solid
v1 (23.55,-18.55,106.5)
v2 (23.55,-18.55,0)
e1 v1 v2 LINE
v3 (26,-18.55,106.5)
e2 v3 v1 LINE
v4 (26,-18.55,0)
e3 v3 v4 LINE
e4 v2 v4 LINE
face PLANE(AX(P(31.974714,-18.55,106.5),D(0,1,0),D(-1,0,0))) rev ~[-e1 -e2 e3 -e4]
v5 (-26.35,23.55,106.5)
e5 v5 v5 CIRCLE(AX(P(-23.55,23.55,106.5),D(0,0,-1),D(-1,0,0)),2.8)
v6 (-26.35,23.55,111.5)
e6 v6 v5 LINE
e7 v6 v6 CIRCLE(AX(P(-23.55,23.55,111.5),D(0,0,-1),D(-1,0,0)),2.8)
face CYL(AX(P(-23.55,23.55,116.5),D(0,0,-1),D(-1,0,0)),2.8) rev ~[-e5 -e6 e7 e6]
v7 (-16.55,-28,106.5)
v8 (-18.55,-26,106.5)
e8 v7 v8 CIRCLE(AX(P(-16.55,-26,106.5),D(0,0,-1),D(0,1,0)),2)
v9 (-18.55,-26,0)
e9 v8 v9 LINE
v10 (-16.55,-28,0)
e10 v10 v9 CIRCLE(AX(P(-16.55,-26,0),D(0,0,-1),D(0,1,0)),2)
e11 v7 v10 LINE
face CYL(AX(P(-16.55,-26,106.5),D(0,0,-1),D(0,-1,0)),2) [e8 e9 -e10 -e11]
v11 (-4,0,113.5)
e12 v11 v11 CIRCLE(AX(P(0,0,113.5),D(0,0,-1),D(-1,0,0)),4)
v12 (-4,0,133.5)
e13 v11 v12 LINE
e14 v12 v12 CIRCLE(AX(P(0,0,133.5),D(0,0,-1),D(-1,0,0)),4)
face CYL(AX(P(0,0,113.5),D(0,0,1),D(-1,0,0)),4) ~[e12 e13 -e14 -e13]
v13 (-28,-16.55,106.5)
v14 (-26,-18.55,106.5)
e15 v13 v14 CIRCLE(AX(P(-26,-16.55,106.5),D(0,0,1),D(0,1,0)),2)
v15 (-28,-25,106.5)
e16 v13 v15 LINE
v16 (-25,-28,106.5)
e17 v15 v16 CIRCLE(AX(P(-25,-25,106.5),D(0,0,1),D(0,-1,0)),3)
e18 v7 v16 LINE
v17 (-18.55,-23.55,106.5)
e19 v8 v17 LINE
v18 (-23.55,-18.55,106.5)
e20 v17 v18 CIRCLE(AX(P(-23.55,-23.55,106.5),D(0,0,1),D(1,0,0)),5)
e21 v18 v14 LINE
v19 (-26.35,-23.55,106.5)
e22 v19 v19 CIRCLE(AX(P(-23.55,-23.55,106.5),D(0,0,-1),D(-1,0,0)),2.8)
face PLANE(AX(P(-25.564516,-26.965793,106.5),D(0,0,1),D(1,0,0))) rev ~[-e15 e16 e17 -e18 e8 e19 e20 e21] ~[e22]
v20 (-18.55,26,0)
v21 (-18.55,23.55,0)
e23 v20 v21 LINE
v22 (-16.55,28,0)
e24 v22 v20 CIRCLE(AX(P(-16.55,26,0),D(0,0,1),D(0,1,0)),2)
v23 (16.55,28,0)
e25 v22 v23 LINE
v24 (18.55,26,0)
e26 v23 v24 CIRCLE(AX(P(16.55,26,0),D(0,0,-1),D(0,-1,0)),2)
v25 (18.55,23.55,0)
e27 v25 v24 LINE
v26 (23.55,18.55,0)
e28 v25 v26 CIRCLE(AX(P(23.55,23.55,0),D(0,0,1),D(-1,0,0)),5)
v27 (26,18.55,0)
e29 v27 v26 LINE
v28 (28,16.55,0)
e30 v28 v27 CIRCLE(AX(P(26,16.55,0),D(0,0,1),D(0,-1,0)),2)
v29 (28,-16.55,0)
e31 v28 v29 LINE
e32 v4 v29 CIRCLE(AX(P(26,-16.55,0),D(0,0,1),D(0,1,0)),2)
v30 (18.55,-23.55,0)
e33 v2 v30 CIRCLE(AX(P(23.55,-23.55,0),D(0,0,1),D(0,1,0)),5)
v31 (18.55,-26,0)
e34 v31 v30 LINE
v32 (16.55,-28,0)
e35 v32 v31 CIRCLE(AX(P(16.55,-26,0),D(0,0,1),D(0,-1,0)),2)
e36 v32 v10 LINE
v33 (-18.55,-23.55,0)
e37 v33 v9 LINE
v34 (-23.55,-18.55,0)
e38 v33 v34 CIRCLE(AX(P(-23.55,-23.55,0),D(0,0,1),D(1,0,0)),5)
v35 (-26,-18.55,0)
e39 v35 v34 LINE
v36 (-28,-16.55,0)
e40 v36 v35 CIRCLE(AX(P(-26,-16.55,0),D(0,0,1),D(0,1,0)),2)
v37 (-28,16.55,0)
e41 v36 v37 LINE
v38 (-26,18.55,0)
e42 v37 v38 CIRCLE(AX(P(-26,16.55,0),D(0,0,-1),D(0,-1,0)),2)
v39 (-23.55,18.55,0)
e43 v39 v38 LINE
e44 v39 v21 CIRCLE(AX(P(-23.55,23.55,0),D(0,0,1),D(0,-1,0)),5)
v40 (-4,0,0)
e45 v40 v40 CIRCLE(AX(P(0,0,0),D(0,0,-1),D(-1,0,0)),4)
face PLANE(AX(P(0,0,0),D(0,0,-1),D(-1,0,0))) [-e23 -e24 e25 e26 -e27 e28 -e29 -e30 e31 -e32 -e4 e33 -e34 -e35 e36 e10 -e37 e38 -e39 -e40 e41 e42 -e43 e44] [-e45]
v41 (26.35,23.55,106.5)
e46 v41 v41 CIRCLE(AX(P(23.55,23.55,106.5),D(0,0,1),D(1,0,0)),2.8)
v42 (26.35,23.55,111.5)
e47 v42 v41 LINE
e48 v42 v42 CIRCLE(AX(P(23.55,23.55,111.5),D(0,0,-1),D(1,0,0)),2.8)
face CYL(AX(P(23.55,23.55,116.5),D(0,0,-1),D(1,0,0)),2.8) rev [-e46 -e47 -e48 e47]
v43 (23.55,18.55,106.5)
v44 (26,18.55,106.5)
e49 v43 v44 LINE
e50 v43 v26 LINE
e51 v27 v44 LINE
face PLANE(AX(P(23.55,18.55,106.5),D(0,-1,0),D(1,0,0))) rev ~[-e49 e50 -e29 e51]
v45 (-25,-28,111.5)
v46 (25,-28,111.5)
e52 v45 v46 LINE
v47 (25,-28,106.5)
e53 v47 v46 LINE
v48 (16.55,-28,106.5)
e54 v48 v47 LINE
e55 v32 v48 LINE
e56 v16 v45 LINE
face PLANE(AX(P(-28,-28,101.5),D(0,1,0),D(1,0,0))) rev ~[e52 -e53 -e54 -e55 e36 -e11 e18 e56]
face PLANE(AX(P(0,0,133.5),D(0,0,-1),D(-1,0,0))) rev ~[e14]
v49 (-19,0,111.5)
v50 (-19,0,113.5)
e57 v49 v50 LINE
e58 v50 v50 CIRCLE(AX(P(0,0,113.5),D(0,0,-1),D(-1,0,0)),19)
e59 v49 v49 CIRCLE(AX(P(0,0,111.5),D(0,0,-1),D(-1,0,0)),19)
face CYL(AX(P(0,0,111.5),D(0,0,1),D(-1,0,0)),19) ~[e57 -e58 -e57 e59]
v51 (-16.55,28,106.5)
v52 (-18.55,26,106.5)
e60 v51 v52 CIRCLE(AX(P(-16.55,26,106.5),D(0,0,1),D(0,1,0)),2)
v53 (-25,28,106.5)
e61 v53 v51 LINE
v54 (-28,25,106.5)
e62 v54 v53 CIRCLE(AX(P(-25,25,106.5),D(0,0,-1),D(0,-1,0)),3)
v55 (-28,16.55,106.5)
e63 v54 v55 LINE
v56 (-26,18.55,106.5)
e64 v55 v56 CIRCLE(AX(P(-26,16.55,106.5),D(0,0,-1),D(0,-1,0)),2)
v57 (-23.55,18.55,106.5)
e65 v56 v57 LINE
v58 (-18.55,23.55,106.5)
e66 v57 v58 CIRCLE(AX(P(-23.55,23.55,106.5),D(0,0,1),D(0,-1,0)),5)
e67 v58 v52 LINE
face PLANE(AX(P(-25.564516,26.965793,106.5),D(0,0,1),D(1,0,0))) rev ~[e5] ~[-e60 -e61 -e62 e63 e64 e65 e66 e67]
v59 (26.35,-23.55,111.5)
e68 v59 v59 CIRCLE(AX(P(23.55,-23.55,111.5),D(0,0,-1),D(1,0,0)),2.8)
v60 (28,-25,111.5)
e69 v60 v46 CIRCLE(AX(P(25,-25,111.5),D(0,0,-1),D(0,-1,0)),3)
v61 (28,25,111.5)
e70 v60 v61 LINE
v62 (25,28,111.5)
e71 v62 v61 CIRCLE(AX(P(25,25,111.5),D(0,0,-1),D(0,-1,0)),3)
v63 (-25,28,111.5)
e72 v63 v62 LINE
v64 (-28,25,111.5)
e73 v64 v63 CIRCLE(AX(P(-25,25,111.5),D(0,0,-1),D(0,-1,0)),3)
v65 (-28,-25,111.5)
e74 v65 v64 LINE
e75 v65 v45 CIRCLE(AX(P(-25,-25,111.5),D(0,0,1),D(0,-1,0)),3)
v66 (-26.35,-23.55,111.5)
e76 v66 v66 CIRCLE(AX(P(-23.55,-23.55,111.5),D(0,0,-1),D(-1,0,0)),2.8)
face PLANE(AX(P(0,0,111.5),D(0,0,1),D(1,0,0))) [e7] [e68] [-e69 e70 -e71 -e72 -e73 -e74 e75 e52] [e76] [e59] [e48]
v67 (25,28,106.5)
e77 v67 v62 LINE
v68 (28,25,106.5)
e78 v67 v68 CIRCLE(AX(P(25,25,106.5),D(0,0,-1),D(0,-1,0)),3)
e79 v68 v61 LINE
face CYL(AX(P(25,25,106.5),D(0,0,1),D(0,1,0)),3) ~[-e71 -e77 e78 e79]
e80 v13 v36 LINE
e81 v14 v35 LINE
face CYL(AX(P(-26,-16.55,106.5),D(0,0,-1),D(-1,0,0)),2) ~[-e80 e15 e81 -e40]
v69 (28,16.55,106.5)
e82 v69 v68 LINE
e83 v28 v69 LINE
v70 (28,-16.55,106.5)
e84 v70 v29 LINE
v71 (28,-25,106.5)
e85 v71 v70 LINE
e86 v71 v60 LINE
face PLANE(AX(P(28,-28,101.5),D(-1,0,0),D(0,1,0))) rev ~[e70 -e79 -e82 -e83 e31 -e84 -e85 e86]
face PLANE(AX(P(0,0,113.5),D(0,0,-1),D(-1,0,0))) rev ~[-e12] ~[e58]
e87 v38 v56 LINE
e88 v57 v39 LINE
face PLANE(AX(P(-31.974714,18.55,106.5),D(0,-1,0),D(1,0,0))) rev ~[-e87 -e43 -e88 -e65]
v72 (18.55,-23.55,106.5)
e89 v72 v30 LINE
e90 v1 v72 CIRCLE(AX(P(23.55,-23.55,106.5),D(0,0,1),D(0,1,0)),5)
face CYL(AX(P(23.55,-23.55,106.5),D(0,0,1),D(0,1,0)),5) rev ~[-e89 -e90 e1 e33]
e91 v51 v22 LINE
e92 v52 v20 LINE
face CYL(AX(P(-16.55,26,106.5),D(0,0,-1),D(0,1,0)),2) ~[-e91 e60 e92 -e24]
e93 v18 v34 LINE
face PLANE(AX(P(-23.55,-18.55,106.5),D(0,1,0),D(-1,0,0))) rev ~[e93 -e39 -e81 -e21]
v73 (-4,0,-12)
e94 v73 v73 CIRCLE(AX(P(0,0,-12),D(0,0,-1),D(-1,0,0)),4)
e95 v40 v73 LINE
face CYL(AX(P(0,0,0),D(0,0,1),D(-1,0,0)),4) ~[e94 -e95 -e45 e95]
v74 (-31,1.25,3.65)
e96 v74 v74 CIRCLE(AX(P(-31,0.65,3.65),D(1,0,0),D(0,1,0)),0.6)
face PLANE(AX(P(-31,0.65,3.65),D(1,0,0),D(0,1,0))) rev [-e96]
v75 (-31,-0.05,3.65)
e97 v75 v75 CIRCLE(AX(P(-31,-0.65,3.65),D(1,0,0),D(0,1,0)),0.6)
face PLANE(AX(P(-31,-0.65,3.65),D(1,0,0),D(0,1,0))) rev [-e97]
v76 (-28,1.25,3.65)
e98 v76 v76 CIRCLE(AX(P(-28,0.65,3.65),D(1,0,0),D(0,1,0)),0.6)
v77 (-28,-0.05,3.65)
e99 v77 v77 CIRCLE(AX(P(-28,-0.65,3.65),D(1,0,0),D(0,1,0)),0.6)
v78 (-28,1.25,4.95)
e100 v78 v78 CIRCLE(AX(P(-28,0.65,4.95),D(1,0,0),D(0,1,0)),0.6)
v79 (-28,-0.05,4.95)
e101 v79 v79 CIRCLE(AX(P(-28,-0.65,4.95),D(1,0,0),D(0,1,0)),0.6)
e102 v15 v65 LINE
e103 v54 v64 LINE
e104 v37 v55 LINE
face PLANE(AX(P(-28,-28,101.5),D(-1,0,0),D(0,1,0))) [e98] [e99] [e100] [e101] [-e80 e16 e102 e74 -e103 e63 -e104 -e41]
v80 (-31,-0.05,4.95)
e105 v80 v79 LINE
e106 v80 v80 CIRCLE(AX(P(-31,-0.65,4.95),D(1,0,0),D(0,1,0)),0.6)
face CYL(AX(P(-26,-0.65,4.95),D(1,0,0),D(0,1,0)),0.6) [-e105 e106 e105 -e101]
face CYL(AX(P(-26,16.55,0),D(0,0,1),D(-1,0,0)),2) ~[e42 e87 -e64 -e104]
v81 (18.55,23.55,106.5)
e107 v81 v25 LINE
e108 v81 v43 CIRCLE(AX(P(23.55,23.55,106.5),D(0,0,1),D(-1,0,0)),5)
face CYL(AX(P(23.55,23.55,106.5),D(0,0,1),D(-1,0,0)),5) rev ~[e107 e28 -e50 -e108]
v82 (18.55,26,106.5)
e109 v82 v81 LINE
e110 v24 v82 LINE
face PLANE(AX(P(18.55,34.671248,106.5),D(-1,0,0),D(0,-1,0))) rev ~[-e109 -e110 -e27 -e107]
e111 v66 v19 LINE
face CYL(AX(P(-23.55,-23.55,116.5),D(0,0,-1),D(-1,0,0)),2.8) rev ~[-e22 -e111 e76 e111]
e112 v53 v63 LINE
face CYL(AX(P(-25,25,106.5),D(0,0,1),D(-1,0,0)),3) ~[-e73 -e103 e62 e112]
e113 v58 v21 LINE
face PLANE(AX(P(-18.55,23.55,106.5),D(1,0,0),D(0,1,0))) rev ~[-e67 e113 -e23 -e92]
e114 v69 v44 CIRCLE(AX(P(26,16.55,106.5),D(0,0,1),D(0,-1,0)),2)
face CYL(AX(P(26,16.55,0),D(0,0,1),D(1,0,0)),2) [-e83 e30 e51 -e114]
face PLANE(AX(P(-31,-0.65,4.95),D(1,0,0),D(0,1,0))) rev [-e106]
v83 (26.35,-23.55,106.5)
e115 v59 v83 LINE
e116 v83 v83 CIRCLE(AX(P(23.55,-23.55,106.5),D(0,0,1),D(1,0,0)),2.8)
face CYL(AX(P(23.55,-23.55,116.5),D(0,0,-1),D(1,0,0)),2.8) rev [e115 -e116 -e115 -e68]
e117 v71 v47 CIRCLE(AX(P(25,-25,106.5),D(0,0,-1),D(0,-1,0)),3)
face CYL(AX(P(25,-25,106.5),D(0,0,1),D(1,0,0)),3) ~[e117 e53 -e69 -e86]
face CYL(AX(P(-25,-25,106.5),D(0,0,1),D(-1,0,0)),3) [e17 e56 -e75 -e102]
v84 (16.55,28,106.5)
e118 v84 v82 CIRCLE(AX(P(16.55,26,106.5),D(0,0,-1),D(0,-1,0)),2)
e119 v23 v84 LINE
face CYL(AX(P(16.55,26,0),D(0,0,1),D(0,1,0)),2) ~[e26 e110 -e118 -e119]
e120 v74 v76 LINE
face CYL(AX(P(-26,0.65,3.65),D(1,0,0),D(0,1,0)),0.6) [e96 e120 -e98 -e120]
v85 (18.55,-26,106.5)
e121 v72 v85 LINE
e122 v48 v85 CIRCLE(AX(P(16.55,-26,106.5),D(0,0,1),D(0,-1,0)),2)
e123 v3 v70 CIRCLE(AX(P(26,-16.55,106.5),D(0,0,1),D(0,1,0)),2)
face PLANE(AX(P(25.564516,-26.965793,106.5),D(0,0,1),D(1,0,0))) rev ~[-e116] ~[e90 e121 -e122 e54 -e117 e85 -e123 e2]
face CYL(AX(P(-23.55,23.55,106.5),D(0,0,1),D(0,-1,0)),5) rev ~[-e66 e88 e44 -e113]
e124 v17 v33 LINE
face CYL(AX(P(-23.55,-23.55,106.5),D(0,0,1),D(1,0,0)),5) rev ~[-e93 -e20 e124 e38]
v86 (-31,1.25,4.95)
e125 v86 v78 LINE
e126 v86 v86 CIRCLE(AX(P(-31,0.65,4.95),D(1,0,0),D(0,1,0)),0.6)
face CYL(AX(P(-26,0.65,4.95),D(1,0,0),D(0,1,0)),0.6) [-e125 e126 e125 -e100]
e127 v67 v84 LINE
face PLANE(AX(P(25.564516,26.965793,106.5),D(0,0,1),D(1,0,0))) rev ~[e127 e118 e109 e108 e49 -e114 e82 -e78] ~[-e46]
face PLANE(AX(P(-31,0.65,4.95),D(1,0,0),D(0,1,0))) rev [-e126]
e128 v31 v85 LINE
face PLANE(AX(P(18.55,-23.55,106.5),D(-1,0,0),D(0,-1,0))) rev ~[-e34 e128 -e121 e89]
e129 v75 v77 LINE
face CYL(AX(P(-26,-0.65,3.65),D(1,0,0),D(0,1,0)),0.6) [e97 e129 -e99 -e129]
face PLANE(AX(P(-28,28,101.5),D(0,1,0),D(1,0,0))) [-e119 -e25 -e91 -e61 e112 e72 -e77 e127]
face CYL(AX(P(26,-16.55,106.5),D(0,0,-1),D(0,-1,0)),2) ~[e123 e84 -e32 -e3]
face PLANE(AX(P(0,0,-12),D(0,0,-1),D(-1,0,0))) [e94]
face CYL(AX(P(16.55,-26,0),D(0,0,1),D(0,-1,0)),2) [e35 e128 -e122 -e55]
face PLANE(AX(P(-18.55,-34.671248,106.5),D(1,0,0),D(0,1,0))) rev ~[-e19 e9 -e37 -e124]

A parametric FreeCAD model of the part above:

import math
import FreeCAD as App
import Part
import Sketcher
Q = App.Units.Quantity


def edges_at(feature, points):
    """Names of the edges that pass closest to the given points."""
    edges = feature.Shape.Edges
    near = lambda p: min(range(len(edges)), key=lambda i: edges[i].distToShape(Part.Vertex(*p))[0])
    return sorted({f"Edge{near(p) + 1}" for p in points})

doc = App.newDocument("Part")
body = doc.addObject("PartDesign::Body", "Body")

# Sketch on XY plane
sketch1 = body.newObject("Sketcher::SketchObject", "Sketch")
sketch1.AttachmentSupport = (doc.getObject("XY_Plane"), [""])
sketch1.MapMode = "FlatFace"
sketch1.addGeometry(Part.LineSegment(App.Vector(23, 28, 0), App.Vector(28, 23, 0)), False)
sketch1.addGeometry(Part.LineSegment(App.Vector(28, 23, 0), App.Vector(28, -23, 0)), False)
sketch1.addGeometry(Part.LineSegment(App.Vector(28, -23, 0), App.Vector(23, -28, 0)), False)
sketch1.addGeometry(Part.LineSegment(App.Vector(23, -28, 0), App.Vector(-23, -28, 0)), False)
sketch1.addGeometry(Part.LineSegment(App.Vector(-23, -28, 0), App.Vector(-28, -23, 0)), False)
sketch1.addGeometry(Part.LineSegment(App.Vector(-28, -23, 0), App.Vector(-28, 23, 0)), False)
sketch1.addGeometry(Part.LineSegment(App.Vector(-28, 23, 0), App.Vector(-23, 28, 0)), False)
sketch1.addGeometry(Part.LineSegment(App.Vector(-23, 28, 0), App.Vector(23, 28, 0)), False)
sketch1.addConstraint(Sketcher.Constraint("Coincident", 0, 2, 1, 1))
sketch1.addConstraint(Sketcher.Constraint("Coincident", 1, 2, 2, 1))
sketch1.addConstraint(Sketcher.Constraint("Coincident", 2, 2, 3, 1))
sketch1.addConstraint(Sketcher.Constraint("Coincident", 3, 2, 4, 1))
sketch1.addConstraint(Sketcher.Constraint("Coincident", 4, 2, 5, 1))
sketch1.addConstraint(Sketcher.Constraint("Coincident", 5, 2, 6, 1))
sketch1.addConstraint(Sketcher.Constraint("Coincident", 6, 2, 7, 1))
sketch1.addConstraint(Sketcher.Constraint("Coincident", 7, 2, 0, 1))
sketch1.addConstraint(Sketcher.Constraint("Vertical", 1))
sketch1.addConstraint(Sketcher.Constraint("Horizontal", 3))
sketch1.addConstraint(Sketcher.Constraint("Vertical", 5))
sketch1.addConstraint(Sketcher.Constraint("Horizontal", 7))
sketch1.addConstraint(Sketcher.Constraint("Symmetric", 0, 2, 4, 2, -1, 1))
sketch1.addConstraint(Sketcher.Constraint("Symmetric", 2, 2, 6, 2, -1, 1))
sketch1.addConstraint(Sketcher.Constraint("Perpendicular", 0, 2))
sketch1.addConstraint(Sketcher.Constraint("Perpendicular", 2, 4))
sketch1.addConstraint(Sketcher.Constraint("Perpendicular", 4, 6))
sketch1.addConstraint(Sketcher.Constraint("Horizontal", 1, 2, 4, 2))
sketch1.addConstraint(Sketcher.Constraint("Vertical", 3, 2, 6, 2))
sketch1.addConstraint(Sketcher.Constraint("Equal", 7, 1))
sketch1.addConstraint(Sketcher.Constraint("DistanceX", 3, 2, 3, 1, Q("46 mm")))
sketch1.addConstraint(Sketcher.Constraint("DistanceX", -1, 1, 0, 2, Q("28 mm")))
pad1 = body.newObject("PartDesign::Pad", "Pad")
pad1.Profile = sketch1
pad1.Length = 11.5

# Sketch on XY plane
sketch2 = body.newObject("Sketcher::SketchObject", "Sketch001")
sketch2.AttachmentSupport = (doc.getObject("XY_Plane"), [""])
sketch2.MapMode = "FlatFace"
sketch2.AttachmentOffset = App.Placement(App.Vector(0, 0, 11.5), App.Rotation())
sketch2.addGeometry(Part.LineSegment(App.Vector(23, 28, 0), App.Vector(-23, 28, 0)), False)
sketch2.addGeometry(Part.LineSegment(App.Vector(-23, 28, 0), App.Vector(-28, 23, 0)), False)
sketch2.addGeometry(Part.LineSegment(App.Vector(-28, 23, 0), App.Vector(-28, -23, 0)), False)
sketch2.addGeometry(Part.LineSegment(App.Vector(-28, -23, 0), App.Vector(-23, -28, 0)), False)
sketch2.addGeometry(Part.LineSegment(App.Vector(-23, -28, 0), App.Vector(23, -28, 0)), False)
sketch2.addGeometry(Part.LineSegment(App.Vector(23, -28, 0), App.Vector(28, -23, 0)), False)
sketch2.addGeometry(Part.LineSegment(App.Vector(28, -23, 0), App.Vector(28, 23, 0)), False)
sketch2.addGeometry(Part.LineSegment(App.Vector(28, 23, 0), App.Vector(23, 28, 0)), False)
sketch2.addConstraint(Sketcher.Constraint("Coincident", 0, 2, 1, 1))
sketch2.addConstraint(Sketcher.Constraint("Coincident", 1, 2, 2, 1))
sketch2.addConstraint(Sketcher.Constraint("Coincident", 2, 2, 3, 1))
sketch2.addConstraint(Sketcher.Constraint("Coincident", 3, 2, 4, 1))
sketch2.addConstraint(Sketcher.Constraint("Coincident", 4, 2, 5, 1))
sketch2.addConstraint(Sketcher.Constraint("Coincident", 5, 2, 6, 1))
sketch2.addConstraint(Sketcher.Constraint("Coincident", 6, 2, 7, 1))
sketch2.addConstraint(Sketcher.Constraint("Coincident", 7, 2, 0, 1))
sketch2.addConstraint(Sketcher.Constraint("Horizontal", 0))
sketch2.addConstraint(Sketcher.Constraint("Vertical", 2))
sketch2.addConstraint(Sketcher.Constraint("Horizontal", 4))
sketch2.addConstraint(Sketcher.Constraint("Vertical", 6))
sketch2.addConstraint(Sketcher.Constraint("Symmetric", 0, 2, 4, 2, -1, 1))
sketch2.addConstraint(Sketcher.Constraint("Symmetric", 1, 2, 5, 2, -1, 1))
sketch2.addConstraint(Sketcher.Constraint("Perpendicular", 1, 3))
sketch2.addConstraint(Sketcher.Constraint("Perpendicular", 5, 7))
sketch2.addConstraint(Sketcher.Constraint("Horizontal", 2, 2, 5, 2))
sketch2.addConstraint(Sketcher.Constraint("Horizontal", 1, 2, 6, 2))
sketch2.addConstraint(Sketcher.Constraint("Vertical", 0, 2, 3, 2))
sketch2.addConstraint(Sketcher.Constraint("Equal", 4, 2))
sketch2.addConstraint(Sketcher.Constraint("DistanceX", 0, 2, 0, 1, Q("46 mm")))
sketch2.addConstraint(Sketcher.Constraint("DistanceY", -1, 1, 0, 2, Q("28 mm")))
pad2 = body.newObject("PartDesign::Pad", "Pad001")
pad2.Profile = sketch2
pad2.Length = 90

# Sketch on XY plane
sketch3 = body.newObject("Sketcher::SketchObject", "Sketch002")
sketch3.AttachmentSupport = (doc.getObject("XY_Plane"), [""])
sketch3.MapMode = "FlatFace"
sketch3.AttachmentOffset = App.Placement(App.Vector(0, 0, 101.5), App.Rotation())
sketch3.addGeometry(Part.LineSegment(App.Vector(-28, 28, 0), App.Vector(-28, -28, 0)), False)
sketch3.addGeometry(Part.LineSegment(App.Vector(-28, -28, 0), App.Vector(28, -28, 0)), False)
sketch3.addGeometry(Part.LineSegment(App.Vector(28, -28, 0), App.Vector(28, 28, 0)), False)
sketch3.addGeometry(Part.LineSegment(App.Vector(28, 28, 0), App.Vector(-28, 28, 0)), False)
sketch3.addConstraint(Sketcher.Constraint("Coincident", 0, 2, 1, 1))
sketch3.addConstraint(Sketcher.Constraint("Coincident", 1, 2, 2, 1))
sketch3.addConstraint(Sketcher.Constraint("Coincident", 2, 2, 3, 1))
sketch3.addConstraint(Sketcher.Constraint("Coincident", 3, 2, 0, 1))
sketch3.addConstraint(Sketcher.Constraint("Vertical", 0))
sketch3.addConstraint(Sketcher.Constraint("Horizontal", 1))
sketch3.addConstraint(Sketcher.Constraint("Vertical", 2))
sketch3.addConstraint(Sketcher.Constraint("Horizontal", 3))
sketch3.addConstraint(Sketcher.Constraint("Symmetric", 0, 2, 2, 2, -1, 1))
sketch3.addConstraint(Sketcher.Constraint("Equal", 3, 0))
sketch3.addConstraint(Sketcher.Constraint("DistanceX", 1, 1, 1, 2, Q("56 mm")))
pad3 = body.newObject("PartDesign::Pad", "Pad002")
pad3.Profile = sketch3
pad3.Length = 10

# Sketch on XY plane
sketch4 = body.newObject("Sketcher::SketchObject", "Sketch003")
sketch4.AttachmentSupport = (doc.getObject("XY_Plane"), [""])
sketch4.MapMode = "FlatFace"
sketch4.AttachmentOffset = App.Placement(App.Vector(0, 0, 3.65), App.Rotation())
sketch4.addGeometry(Part.LineSegment(App.Vector(-31, 1.25, 0), App.Vector(-31, 0.65, 0)), False)
sketch4.addGeometry(Part.LineSegment(App.Vector(-31, 0.65, 0), App.Vector(-21, 0.65, 0)), False)
sketch4.addGeometry(Part.LineSegment(App.Vector(-21, 0.65, 0), App.Vector(-21, 1.25, 0)), False)
sketch4.addGeometry(Part.LineSegment(App.Vector(-21, 1.25, 0), App.Vector(-31, 1.25, 0)), False)
sketch4.addGeometry(Part.LineSegment(App.Vector(-31, 0.65, 0), App.Vector(-21, 0.65, 0)), True)  # axis
sketch4.addConstraint(Sketcher.Constraint("Coincident", 0, 2, 1, 1))
sketch4.addConstraint(Sketcher.Constraint("Coincident", 1, 2, 2, 1))
sketch4.addConstraint(Sketcher.Constraint("Coincident", 2, 2, 3, 1))
sketch4.addConstraint(Sketcher.Constraint("Coincident", 3, 2, 0, 1))
sketch4.addConstraint(Sketcher.Constraint("Vertical", 0))
sketch4.addConstraint(Sketcher.Constraint("Horizontal", 1))
sketch4.addConstraint(Sketcher.Constraint("Vertical", 2))
sketch4.addConstraint(Sketcher.Constraint("Horizontal", 3))
sketch4.addConstraint(Sketcher.Constraint("Horizontal", 4))
sketch4.addConstraint(Sketcher.Constraint("Coincident", 4, 1, 0, 2))
sketch4.addConstraint(Sketcher.Constraint("Vertical", 2, 2, 4, 2))
sketch4.addConstraint(Sketcher.Constraint("DistanceX", 1, 1, 1, 2, Q("10 mm")))
sketch4.addConstraint(Sketcher.Constraint("DistanceY", 0, 2, 0, 1, Q("0.6 mm")))
sketch4.addConstraint(Sketcher.Constraint("DistanceX", 0, 2, -1, 1, Q("31 mm")))
sketch4.addConstraint(Sketcher.Constraint("DistanceY", -1, 1, 0, 2, Q("0.65 mm")))
revolution = body.newObject("PartDesign::Revolution", "Revolution")
revolution.Profile = sketch4
revolution.ReferenceAxis = (sketch4, ["Axis0"])
revolution.Angle = 360

# Sketch on XY plane
sketch5 = body.newObject("Sketcher::SketchObject", "Sketch004")
sketch5.AttachmentSupport = (doc.getObject("XY_Plane"), [""])
sketch5.MapMode = "FlatFace"
sketch5.AttachmentOffset = App.Placement(App.Vector(0, 0, 3.65), App.Rotation())
sketch5.addGeometry(Part.LineSegment(App.Vector(-31, -0.05, 0), App.Vector(-31, -0.65, 0)), False)
sketch5.addGeometry(Part.LineSegment(App.Vector(-31, -0.65, 0), App.Vector(-21, -0.65, 0)), False)
sketch5.addGeometry(Part.LineSegment(App.Vector(-21, -0.65, 0), App.Vector(-21, -0.05, 0)), False)
sketch5.addGeometry(Part.LineSegment(App.Vector(-21, -0.05, 0), App.Vector(-31, -0.05, 0)), False)
sketch5.addGeometry(Part.LineSegment(App.Vector(-31, -0.65, 0), App.Vector(-21, -0.65, 0)), True)  # axis
sketch5.addConstraint(Sketcher.Constraint("Coincident", 0, 2, 1, 1))
sketch5.addConstraint(Sketcher.Constraint("Coincident", 1, 2, 2, 1))
sketch5.addConstraint(Sketcher.Constraint("Coincident", 2, 2, 3, 1))
sketch5.addConstraint(Sketcher.Constraint("Coincident", 3, 2, 0, 1))
sketch5.addConstraint(Sketcher.Constraint("Vertical", 0))
sketch5.addConstraint(Sketcher.Constraint("Horizontal", 1))
sketch5.addConstraint(Sketcher.Constraint("Vertical", 2))
sketch5.addConstraint(Sketcher.Constraint("Horizontal", 3))
sketch5.addConstraint(Sketcher.Constraint("Horizontal", 4))
sketch5.addConstraint(Sketcher.Constraint("Coincident", 4, 1, 0, 2))
sketch5.addConstraint(Sketcher.Constraint("Vertical", 2, 2, 4, 2))
sketch5.addConstraint(Sketcher.Constraint("DistanceX", 1, 1, 1, 2, Q("10 mm")))
sketch5.addConstraint(Sketcher.Constraint("DistanceY", 0, 2, 0, 1, Q("0.6 mm")))
sketch5.addConstraint(Sketcher.Constraint("DistanceX", 0, 2, -1, 1, Q("31 mm")))
sketch5.addConstraint(Sketcher.Constraint("DistanceY", 0, 2, -1, 1, Q("0.65 mm")))
revolution2 = body.newObject("PartDesign::Revolution", "Revolution001")
revolution2.Profile = sketch5
revolution2.ReferenceAxis = (sketch5, ["Axis0"])
revolution2.Angle = 360

# Sketch on XY plane
sketch6 = body.newObject("Sketcher::SketchObject", "Sketch005")
sketch6.AttachmentSupport = (doc.getObject("XY_Plane"), [""])
sketch6.MapMode = "FlatFace"
sketch6.AttachmentOffset = App.Placement(App.Vector(0, 0, 4.95), App.Rotation())
sketch6.addGeometry(Part.LineSegment(App.Vector(-31, -0.05, 0), App.Vector(-31, -0.65, 0)), False)
sketch6.addGeometry(Part.LineSegment(App.Vector(-31, -0.65, 0), App.Vector(-21, -0.65, 0)), False)
sketch6.addGeometry(Part.LineSegment(App.Vector(-21, -0.65, 0), App.Vector(-21, -0.05, 0)), False)
sketch6.addGeometry(Part.LineSegment(App.Vector(-21, -0.05, 0), App.Vector(-31, -0.05, 0)), False)
sketch6.addGeometry(Part.LineSegment(App.Vector(-31, -0.65, 0), App.Vector(-21, -0.65, 0)), True)  # axis
sketch6.addConstraint(Sketcher.Constraint("Coincident", 0, 2, 1, 1))
sketch6.addConstraint(Sketcher.Constraint("Coincident", 1, 2, 2, 1))
sketch6.addConstraint(Sketcher.Constraint("Coincident", 2, 2, 3, 1))
sketch6.addConstraint(Sketcher.Constraint("Coincident", 3, 2, 0, 1))
sketch6.addConstraint(Sketcher.Constraint("Vertical", 0))
sketch6.addConstraint(Sketcher.Constraint("Horizontal", 1))
sketch6.addConstraint(Sketcher.Constraint("Vertical", 2))
sketch6.addConstraint(Sketcher.Constraint("Horizontal", 3))
sketch6.addConstraint(Sketcher.Constraint("Horizontal", 4))
sketch6.addConstraint(Sketcher.Constraint("Coincident", 4, 1, 0, 2))
sketch6.addConstraint(Sketcher.Constraint("Vertical", 2, 2, 4, 2))
sketch6.addConstraint(Sketcher.Constraint("DistanceX", 1, 1, 1, 2, Q("10 mm")))
sketch6.addConstraint(Sketcher.Constraint("DistanceY", 0, 2, 0, 1, Q("0.6 mm")))
sketch6.addConstraint(Sketcher.Constraint("DistanceX", 0, 2, -1, 1, Q("31 mm")))
sketch6.addConstraint(Sketcher.Constraint("DistanceY", 0, 2, -1, 1, Q("0.65 mm")))
revolution3 = body.newObject("PartDesign::Revolution", "Revolution002")
revolution3.Profile = sketch6
revolution3.ReferenceAxis = (sketch6, ["Axis0"])
revolution3.Angle = 360

# Sketch on XY plane
sketch7 = body.newObject("Sketcher::SketchObject", "Sketch006")
sketch7.AttachmentSupport = (doc.getObject("XY_Plane"), [""])
sketch7.MapMode = "FlatFace"
sketch7.AttachmentOffset = App.Placement(App.Vector(0, 0, 4.95), App.Rotation())
sketch7.addGeometry(Part.LineSegment(App.Vector(-31, 1.25, 0), App.Vector(-31, 0.65, 0)), False)
sketch7.addGeometry(Part.LineSegment(App.Vector(-31, 0.65, 0), App.Vector(-21, 0.65, 0)), False)
sketch7.addGeometry(Part.LineSegment(App.Vector(-21, 0.65, 0), App.Vector(-21, 1.25, 0)), False)
sketch7.addGeometry(Part.LineSegment(App.Vector(-21, 1.25, 0), App.Vector(-31, 1.25, 0)), False)
sketch7.addGeometry(Part.LineSegment(App.Vector(-31, 0.65, 0), App.Vector(-21, 0.65, 0)), True)  # axis
sketch7.addConstraint(Sketcher.Constraint("Coincident", 0, 2, 1, 1))
sketch7.addConstraint(Sketcher.Constraint("Coincident", 1, 2, 2, 1))
sketch7.addConstraint(Sketcher.Constraint("Coincident", 2, 2, 3, 1))
sketch7.addConstraint(Sketcher.Constraint("Coincident", 3, 2, 0, 1))
sketch7.addConstraint(Sketcher.Constraint("Vertical", 0))
sketch7.addConstraint(Sketcher.Constraint("Horizontal", 1))
sketch7.addConstraint(Sketcher.Constraint("Vertical", 2))
sketch7.addConstraint(Sketcher.Constraint("Horizontal", 3))
sketch7.addConstraint(Sketcher.Constraint("Horizontal", 4))
sketch7.addConstraint(Sketcher.Constraint("Coincident", 4, 1, 0, 2))
sketch7.addConstraint(Sketcher.Constraint("Vertical", 2, 2, 4, 2))
sketch7.addConstraint(Sketcher.Constraint("DistanceX", 1, 1, 1, 2, Q("10 mm")))
sketch7.addConstraint(Sketcher.Constraint("DistanceY", 0, 2, 0, 1, Q("0.6 mm")))
sketch7.addConstraint(Sketcher.Constraint("DistanceX", 0, 2, -1, 1, Q("31 mm")))
sketch7.addConstraint(Sketcher.Constraint("DistanceY", -1, 1, 0, 2, Q("0.65 mm")))
revolution4 = body.newObject("PartDesign::Revolution", "Revolution003")
revolution4.Profile = sketch7
revolution4.ReferenceAxis = (sketch7, ["Axis0"])
revolution4.Angle = 360

# Sketch on XZ plane
sketch8 = body.newObject("Sketcher::SketchObject", "Sketch007")
sketch8.AttachmentSupport = (doc.getObject("XZ_Plane"), [""])
sketch8.MapMode = "FlatFace"
sketch8.addGeometry(Part.LineSegment(App.Vector(4, 133.5, 0), App.Vector(0, 133.5, 0)), False)
sketch8.addGeometry(Part.LineSegment(App.Vector(0, 133.5, 0), App.Vector(0, 111.5, 0)), False)
sketch8.addGeometry(Part.LineSegment(App.Vector(0, 111.5, 0), App.Vector(19, 111.5, 0)), False)
sketch8.addGeometry(Part.LineSegment(App.Vector(19, 111.5, 0), App.Vector(19, 113.5, 0)), False)
sketch8.addGeometry(Part.LineSegment(App.Vector(19, 113.5, 0), App.Vector(4, 113.5, 0)), False)
sketch8.addGeometry(Part.LineSegment(App.Vector(4, 113.5, 0), App.Vector(4, 133.5, 0)), False)
sketch8.addConstraint(Sketcher.Constraint("Coincident", 0, 2, 1, 1))
sketch8.addConstraint(Sketcher.Constraint("Coincident", 1, 2, 2, 1))
sketch8.addConstraint(Sketcher.Constraint("Coincident", 2, 2, 3, 1))
sketch8.addConstraint(Sketcher.Constraint("Coincident", 3, 2, 4, 1))
sketch8.addConstraint(Sketcher.Constraint("Coincident", 4, 2, 5, 1))
sketch8.addConstraint(Sketcher.Constraint("Coincident", 5, 2, 0, 1))
sketch8.addConstraint(Sketcher.Constraint("Horizontal", 0))
sketch8.addConstraint(Sketcher.Constraint("Vertical", 1))
sketch8.addConstraint(Sketcher.Constraint("Horizontal", 2))
sketch8.addConstraint(Sketcher.Constraint("Vertical", 3))
sketch8.addConstraint(Sketcher.Constraint("Horizontal", 4))
sketch8.addConstraint(Sketcher.Constraint("Vertical", 5))
sketch8.addConstraint(Sketcher.Constraint("PointOnObject", 0, 2, -2))
sketch8.addConstraint(Sketcher.Constraint("DistanceX", 0, 2, 0, 1, Q("4 mm")))
sketch8.addConstraint(Sketcher.Constraint("DistanceX", 2, 1, 2, 2, Q("19 mm")))
sketch8.addConstraint(Sketcher.Constraint("DistanceY", 1, 2, 1, 1, Q("22 mm")))
sketch8.addConstraint(Sketcher.Constraint("DistanceY", 3, 1, 3, 2, Q("2 mm")))
sketch8.addConstraint(Sketcher.Constraint("DistanceY", -1, 1, 0, 2, Q("133.5 mm")))
revolution5 = body.newObject("PartDesign::Revolution", "Revolution004")
revolution5.Profile = sketch8
revolution5.ReferenceAxis = (sketch8, ["V_Axis"])
revolution5.Angle = 360

# Sketch on XY plane
sketch9 = body.newObject("Sketcher::SketchObject", "Sketch008")
sketch9.AttachmentSupport = (doc.getObject("XY_Plane"), [""])
sketch9.MapMode = "FlatFace"
sketch9.AttachmentOffset = App.Placement(App.Vector(0, 0, 111.5), App.Rotation())
sketch9.addGeometry(Part.Circle(App.Vector(-23.55, 23.55, 0), App.Vector(0, 0, 1), 2.8), False)
sketch9.addConstraint(Sketcher.Constraint("Diameter", 0, Q("5.6 mm")))
sketch9.addConstraint(Sketcher.Constraint("DistanceX", 0, 3, -1, 1, Q("23.55 mm")))
sketch9.addConstraint(Sketcher.Constraint("DistanceY", -1, 1, 0, 3, Q("23.55 mm")))
doc.recompute()
hole = body.newObject("PartDesign::Hole", "Hole")
hole.Profile = sketch9
hole.ThreadType = "None"
hole.Diameter = 5.6
hole.DepthType = "Dimension"
hole.Depth = 5
hole.DrillPoint = "Flat"

# Sketch on XY plane
sketch10 = body.newObject("Sketcher::SketchObject", "Sketch009")
sketch10.AttachmentSupport = (doc.getObject("XY_Plane"), [""])
sketch10.MapMode = "FlatFace"
sketch10.AttachmentOffset = App.Placement(App.Vector(0, 0, 111.5), App.Rotation())
sketch10.addGeometry(Part.Circle(App.Vector(-23.55, -23.55, 0), App.Vector(0, 0, 1), 2.8), False)
sketch10.addGeometry(Part.Circle(App.Vector(-23.55, 23.55, 0), App.Vector(0, 0, 1), 2.8), False)
sketch10.addConstraint(Sketcher.Constraint("Equal", 0, 1))
sketch10.addConstraint(Sketcher.Constraint("Symmetric", 0, 3, 1, 3, -1))
sketch10.addConstraint(Sketcher.Constraint("Diameter", 0, Q("5.6 mm")))
sketch10.addConstraint(Sketcher.Constraint("DistanceY", 0, 3, 1, 3, Q("47.1 mm")))
sketch10.addConstraint(Sketcher.Constraint("DistanceX", 0, 3, -1, 1, Q("23.55 mm")))
doc.recompute()
hole2 = body.newObject("PartDesign::Hole", "Hole001")
hole2.Profile = sketch10
hole2.ThreadType = "None"
hole2.Diameter = 5.6
hole2.DepthType = "Dimension"
hole2.Depth = 5
hole2.DrillPoint = "Flat"
doc.recompute()

mirrored = body.newObject("PartDesign::Mirrored", "Mirrored")
mirrored.Originals = [hole, hole2]
mirrored.MirrorPlane = (doc.getObject("YZ_Plane"), [""])
body.Tip = mirrored

# Sketch on XY plane
sketch11 = body.newObject("Sketcher::SketchObject", "Sketch010")
sketch11.AttachmentSupport = (doc.getObject("XY_Plane"), [""])
sketch11.MapMode = "FlatFace"
sketch11.AttachmentOffset = App.Placement(App.Vector(0, 0, 101.5), App.Rotation())
sketch11.addGeometry(Part.LineSegment(App.Vector(-18.55, 34.671248, 0), App.Vector(-18.55, 23.55, 0)), False)
sketch11.addGeometry(Part.ArcOfCircle(Part.Circle(App.Vector(-23.55, 23.55, 0), App.Vector(0, 0, 1), 5), math.radians(-90), math.radians(0)), False)
sketch11.addGeometry(Part.LineSegment(App.Vector(-23.55, 18.55, 0), App.Vector(-31.974714, 18.55, 0)), False)
sketch11.addGeometry(Part.LineSegment(App.Vector(-31.974714, 18.55, 0), App.Vector(-31.974714, 34.671248, 0)), False)
sketch11.addGeometry(Part.LineSegment(App.Vector(-31.974714, 34.671248, 0), App.Vector(-18.55, 34.671248, 0)), False)
sketch11.addGeometry(Part.LineSegment(App.Vector(-31.974714, -18.55, 0), App.Vector(-23.55, -18.55, 0)), False)
sketch11.addGeometry(Part.ArcOfCircle(Part.Circle(App.Vector(-23.55, -23.55, 0), App.Vector(0, 0, 1), 5), math.radians(0), math.radians(90)), False)
sketch11.addGeometry(Part.LineSegment(App.Vector(-18.55, -23.55, 0), App.Vector(-18.55, -34.671248, 0)), False)
sketch11.addGeometry(Part.LineSegment(App.Vector(-18.55, -34.671248, 0), App.Vector(-31.974714, -34.671248, 0)), False)
sketch11.addGeometry(Part.LineSegment(App.Vector(-31.974714, -34.671248, 0), App.Vector(-31.974714, -18.55, 0)), False)
sketch11.addGeometry(Part.LineSegment(App.Vector(18.55, -34.671248, 0), App.Vector(18.55, -23.55, 0)), False)
sketch11.addGeometry(Part.ArcOfCircle(Part.Circle(App.Vector(23.55, -23.55, 0), App.Vector(0, 0, 1), 5), math.radians(90), math.radians(180)), False)
sketch11.addGeometry(Part.LineSegment(App.Vector(23.55, -18.55, 0), App.Vector(31.974714, -18.55, 0)), False)
sketch11.addGeometry(Part.LineSegment(App.Vector(31.974714, -18.55, 0), App.Vector(31.974714, -34.671248, 0)), False)
sketch11.addGeometry(Part.LineSegment(App.Vector(31.974714, -34.671248, 0), App.Vector(18.55, -34.671248, 0)), False)
sketch11.addGeometry(Part.LineSegment(App.Vector(31.974714, 18.55, 0), App.Vector(23.55, 18.55, 0)), False)
sketch11.addGeometry(Part.ArcOfCircle(Part.Circle(App.Vector(23.55, 23.55, 0), App.Vector(0, 0, 1), 5), math.radians(180), math.radians(270)), False)
sketch11.addGeometry(Part.LineSegment(App.Vector(18.55, 23.55, 0), App.Vector(18.55, 34.671248, 0)), False)
sketch11.addGeometry(Part.LineSegment(App.Vector(18.55, 34.671248, 0), App.Vector(31.974714, 34.671248, 0)), False)
sketch11.addGeometry(Part.LineSegment(App.Vector(31.974714, 34.671248, 0), App.Vector(31.974714, 18.55, 0)), False)
sketch11.addConstraint(Sketcher.Constraint("Tangent", 0, 2, 1, 2))
sketch11.addConstraint(Sketcher.Constraint("Tangent", 1, 1, 2, 1))
sketch11.addConstraint(Sketcher.Constraint("Coincident", 2, 2, 3, 1))
sketch11.addConstraint(Sketcher.Constraint("Coincident", 3, 2, 4, 1))
sketch11.addConstraint(Sketcher.Constraint("Coincident", 4, 2, 0, 1))
sketch11.addConstraint(Sketcher.Constraint("Tangent", 5, 2, 6, 2))
sketch11.addConstraint(Sketcher.Constraint("Tangent", 6, 1, 7, 1))
sketch11.addConstraint(Sketcher.Constraint("Coincident", 7, 2, 8, 1))
sketch11.addConstraint(Sketcher.Constraint("Coincident", 8, 2, 9, 1))
sketch11.addConstraint(Sketcher.Constraint("Coincident", 9, 2, 5, 1))
sketch11.addConstraint(Sketcher.Constraint("Tangent", 10, 2, 11, 2))
sketch11.addConstraint(Sketcher.Constraint("Tangent", 11, 1, 12, 1))
sketch11.addConstraint(Sketcher.Constraint("Coincident", 12, 2, 13, 1))
sketch11.addConstraint(Sketcher.Constraint("Coincident", 13, 2, 14, 1))
sketch11.addConstraint(Sketcher.Constraint("Coincident", 14, 2, 10, 1))
sketch11.addConstraint(Sketcher.Constraint("Tangent", 15, 2, 16, 2))
sketch11.addConstraint(Sketcher.Constraint("Tangent", 16, 1, 17, 1))
sketch11.addConstraint(Sketcher.Constraint("Coincident", 17, 2, 18, 1))
sketch11.addConstraint(Sketcher.Constraint("Coincident", 18, 2, 19, 1))
sketch11.addConstraint(Sketcher.Constraint("Coincident", 19, 2, 15, 1))
sketch11.addConstraint(Sketcher.Constraint("Vertical", 0))
sketch11.addConstraint(Sketcher.Constraint("Horizontal", 2))
sketch11.addConstraint(Sketcher.Constraint("Vertical", 3))
sketch11.addConstraint(Sketcher.Constraint("Horizontal", 4))
sketch11.addConstraint(Sketcher.Constraint("Horizontal", 5))
sketch11.addConstraint(Sketcher.Constraint("Vertical", 7))
sketch11.addConstraint(Sketcher.Constraint("Horizontal", 8))
sketch11.addConstraint(Sketcher.Constraint("Vertical", 9))
sketch11.addConstraint(Sketcher.Constraint("Vertical", 10))
sketch11.addConstraint(Sketcher.Constraint("Horizontal", 12))
sketch11.addConstraint(Sketcher.Constraint("Vertical", 13))
sketch11.addConstraint(Sketcher.Constraint("Horizontal", 14))
sketch11.addConstraint(Sketcher.Constraint("Horizontal", 15))
sketch11.addConstraint(Sketcher.Constraint("Vertical", 17))
sketch11.addConstraint(Sketcher.Constraint("Horizontal", 18))
sketch11.addConstraint(Sketcher.Constraint("Vertical", 19))
sketch11.addConstraint(Sketcher.Constraint("Equal", 1, 6))
sketch11.addConstraint(Sketcher.Constraint("Equal", 6, 11))
sketch11.addConstraint(Sketcher.Constraint("Equal", 11, 16))
sketch11.addConstraint(Sketcher.Constraint("Symmetric", 1, 3, 11, 3, -1, 1))
sketch11.addConstraint(Sketcher.Constraint("Symmetric", 6, 3, 16, 3, -1, 1))
sketch11.addConstraint(Sketcher.Constraint("Symmetric", 3, 2, 13, 2, -1, 1))
sketch11.addConstraint(Sketcher.Constraint("Symmetric", 8, 2, 18, 2, -1, 1))
sketch11.addConstraint(Sketcher.Constraint("Symmetric", 6, 3, 11, 3, -2))
sketch11.addConstraint(Sketcher.Constraint("Symmetric", 8, 2, 13, 2, -2))
sketch11.addConstraint(Sketcher.Constraint("Radius", 1, Q("5 mm")))
sketch11.addConstraint(Sketcher.Constraint("DistanceY", 6, 3, 1, 3, Q("47.1 mm")))
sketch11.addConstraint(Sketcher.Constraint("DistanceX", 6, 3, 11, 3, Q("47.1 mm")))
sketch11.addConstraint(Sketcher.Constraint("DistanceY", 0, 2, 0, 1, Q("11.121248 mm")))
sketch11.addConstraint(Sketcher.Constraint("DistanceX", 2, 2, 2, 1, Q("8.424714 mm")))
pocket1 = body.newObject("PartDesign::Pocket", "Pocket")
pocket1.Profile = sketch11
pocket1.Type = "TwoLengths"
pocket1.Length = 110.759965
pocket1.Length2 = 5
doc.recompute()

fillet = body.newObject("PartDesign::Fillet", "Fillet")
fillet.Base = (pocket1, edges_at(pocket1, [
    (18.55, 28, 53.25),
    (28, 18.55, 53.25),
    (28, -18.55, 53.25),
    (18.55, -28, 53.25),
    (-18.55, -28, 53.25),
    (-28, -18.55, 53.25),
    (-28, 18.55, 53.25),
    (-18.55, 28, 53.25),
]))
fillet.Radius = 2
doc.recompute()

fillet2 = body.newObject("PartDesign::Fillet", "Fillet001")
fillet2.Base = (fillet, edges_at(fillet, [
    (28, -28, 109),
    (28, 28, 109),
    (-28, 28, 109),
    (-28, -28, 109),
]))
fillet2.Radius = 3

# Sketch on XY plane
sketch12 = body.newObject("Sketcher::SketchObject", "Sketch011")
sketch12.AttachmentSupport = (doc.getObject("XY_Plane"), [""])
sketch12.MapMode = "FlatFace"
sketch12.addGeometry(Part.Circle(App.Vector(0, 0, 0), App.Vector(0, 0, 1), 4), False)
sketch12.addConstraint(Sketcher.Constraint("Coincident", 0, 3, -1, 1))
sketch12.addConstraint(Sketcher.Constraint("Diameter", 0, Q("8 mm")))
pad4 = body.newObject("PartDesign::Pad", "Pad003")
pad4.Profile = sketch12
pad4.Length = 12
pad4.Reversed = True

doc.recompute()
